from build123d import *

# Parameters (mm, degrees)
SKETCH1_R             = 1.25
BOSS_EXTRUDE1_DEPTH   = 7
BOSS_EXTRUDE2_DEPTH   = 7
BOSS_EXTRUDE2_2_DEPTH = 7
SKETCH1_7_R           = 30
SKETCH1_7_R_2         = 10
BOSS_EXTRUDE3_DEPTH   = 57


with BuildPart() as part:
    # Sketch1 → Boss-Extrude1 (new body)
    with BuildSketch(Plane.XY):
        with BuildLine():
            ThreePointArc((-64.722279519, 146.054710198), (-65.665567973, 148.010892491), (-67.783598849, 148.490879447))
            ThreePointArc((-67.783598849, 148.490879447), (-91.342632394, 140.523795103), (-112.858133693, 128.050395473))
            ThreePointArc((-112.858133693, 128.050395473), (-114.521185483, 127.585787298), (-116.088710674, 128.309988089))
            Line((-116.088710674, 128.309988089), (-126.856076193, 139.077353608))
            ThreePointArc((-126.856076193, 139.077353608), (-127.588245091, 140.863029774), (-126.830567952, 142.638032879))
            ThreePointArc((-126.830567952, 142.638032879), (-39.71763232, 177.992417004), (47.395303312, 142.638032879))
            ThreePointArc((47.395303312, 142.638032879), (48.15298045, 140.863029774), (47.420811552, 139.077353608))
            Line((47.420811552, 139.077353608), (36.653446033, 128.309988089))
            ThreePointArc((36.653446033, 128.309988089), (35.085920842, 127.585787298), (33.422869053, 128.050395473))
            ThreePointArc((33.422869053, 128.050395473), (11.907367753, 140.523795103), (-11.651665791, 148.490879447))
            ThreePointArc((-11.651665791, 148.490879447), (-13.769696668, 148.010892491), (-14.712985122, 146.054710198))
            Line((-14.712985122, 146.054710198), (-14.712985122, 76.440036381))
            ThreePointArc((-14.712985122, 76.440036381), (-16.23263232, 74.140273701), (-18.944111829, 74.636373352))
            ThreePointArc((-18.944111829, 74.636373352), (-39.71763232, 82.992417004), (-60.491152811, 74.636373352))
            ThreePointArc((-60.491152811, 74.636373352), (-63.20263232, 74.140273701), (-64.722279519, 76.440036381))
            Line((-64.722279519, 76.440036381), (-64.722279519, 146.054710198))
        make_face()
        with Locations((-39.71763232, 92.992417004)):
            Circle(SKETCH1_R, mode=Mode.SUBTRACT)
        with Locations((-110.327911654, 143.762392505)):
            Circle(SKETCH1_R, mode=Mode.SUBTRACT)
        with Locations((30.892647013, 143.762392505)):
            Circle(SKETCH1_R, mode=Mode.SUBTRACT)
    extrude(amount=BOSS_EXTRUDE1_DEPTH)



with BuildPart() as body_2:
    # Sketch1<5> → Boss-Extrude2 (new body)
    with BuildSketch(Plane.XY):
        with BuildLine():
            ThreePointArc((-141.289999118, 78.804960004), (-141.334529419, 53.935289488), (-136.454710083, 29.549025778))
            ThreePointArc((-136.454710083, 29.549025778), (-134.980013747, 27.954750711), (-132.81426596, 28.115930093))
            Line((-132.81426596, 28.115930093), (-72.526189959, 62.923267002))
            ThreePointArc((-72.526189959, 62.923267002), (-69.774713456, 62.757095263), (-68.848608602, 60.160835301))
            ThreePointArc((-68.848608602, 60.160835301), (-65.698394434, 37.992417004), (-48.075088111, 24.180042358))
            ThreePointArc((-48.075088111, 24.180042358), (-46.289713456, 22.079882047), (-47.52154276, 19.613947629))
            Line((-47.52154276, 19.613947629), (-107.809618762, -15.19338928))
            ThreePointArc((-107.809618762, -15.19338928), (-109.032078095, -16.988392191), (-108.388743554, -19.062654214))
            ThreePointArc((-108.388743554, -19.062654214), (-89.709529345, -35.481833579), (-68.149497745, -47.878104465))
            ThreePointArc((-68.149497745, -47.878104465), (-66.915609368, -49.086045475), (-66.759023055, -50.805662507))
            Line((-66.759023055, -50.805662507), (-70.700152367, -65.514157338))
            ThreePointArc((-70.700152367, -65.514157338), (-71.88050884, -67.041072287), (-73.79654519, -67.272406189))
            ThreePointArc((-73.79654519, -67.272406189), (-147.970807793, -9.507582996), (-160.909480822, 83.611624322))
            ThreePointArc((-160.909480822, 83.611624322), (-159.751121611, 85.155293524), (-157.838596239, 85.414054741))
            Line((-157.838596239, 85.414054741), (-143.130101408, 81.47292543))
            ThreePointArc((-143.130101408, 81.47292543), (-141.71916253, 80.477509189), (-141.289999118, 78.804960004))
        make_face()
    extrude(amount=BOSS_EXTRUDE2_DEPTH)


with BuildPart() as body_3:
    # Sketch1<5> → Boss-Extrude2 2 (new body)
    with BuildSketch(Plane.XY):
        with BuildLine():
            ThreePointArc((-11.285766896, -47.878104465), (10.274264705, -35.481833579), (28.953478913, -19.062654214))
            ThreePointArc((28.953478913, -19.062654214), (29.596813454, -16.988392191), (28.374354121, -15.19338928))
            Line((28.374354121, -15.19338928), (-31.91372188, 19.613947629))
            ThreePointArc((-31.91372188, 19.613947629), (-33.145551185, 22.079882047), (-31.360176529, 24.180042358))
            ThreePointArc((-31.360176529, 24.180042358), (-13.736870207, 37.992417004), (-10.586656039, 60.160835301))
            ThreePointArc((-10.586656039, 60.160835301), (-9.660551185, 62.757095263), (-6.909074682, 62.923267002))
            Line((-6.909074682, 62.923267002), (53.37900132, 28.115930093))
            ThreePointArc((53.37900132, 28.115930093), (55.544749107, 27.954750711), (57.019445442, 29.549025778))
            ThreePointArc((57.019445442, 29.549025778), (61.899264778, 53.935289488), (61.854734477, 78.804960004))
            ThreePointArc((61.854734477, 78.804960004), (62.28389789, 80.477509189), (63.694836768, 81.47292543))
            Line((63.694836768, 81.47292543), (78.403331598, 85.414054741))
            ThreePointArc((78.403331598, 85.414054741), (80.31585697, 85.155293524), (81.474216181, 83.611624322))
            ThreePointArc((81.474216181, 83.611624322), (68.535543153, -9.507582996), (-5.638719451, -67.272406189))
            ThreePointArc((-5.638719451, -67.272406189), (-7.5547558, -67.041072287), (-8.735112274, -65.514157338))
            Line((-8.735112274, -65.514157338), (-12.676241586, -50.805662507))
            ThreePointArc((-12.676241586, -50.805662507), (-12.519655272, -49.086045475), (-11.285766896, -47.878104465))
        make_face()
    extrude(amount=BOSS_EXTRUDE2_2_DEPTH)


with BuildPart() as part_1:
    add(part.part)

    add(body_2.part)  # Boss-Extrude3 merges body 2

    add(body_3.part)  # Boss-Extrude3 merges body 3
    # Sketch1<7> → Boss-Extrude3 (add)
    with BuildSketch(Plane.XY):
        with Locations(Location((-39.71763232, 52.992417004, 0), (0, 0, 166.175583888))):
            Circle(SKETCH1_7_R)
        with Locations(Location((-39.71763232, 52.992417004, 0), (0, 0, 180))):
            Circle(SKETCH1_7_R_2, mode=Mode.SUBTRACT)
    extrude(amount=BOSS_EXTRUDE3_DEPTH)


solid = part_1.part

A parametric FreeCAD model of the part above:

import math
import FreeCAD as App
import Part
import Sketcher

V = App.Vector
Q = App.Units.Quantity

doc = App.newDocument("Part")
body = doc.addObject("PartDesign::Body", "Body")

sketch1 = body.newObject("Sketcher::SketchObject", "Sketch")
sketch1.AttachmentSupport = (doc.getObject("XY_Plane"), [""])
sketch1.MapMode = "FlatFace"
sketch1.addGeometry([
    Part.ArcOfCircle(Part.Circle(V(-67.2, 146.1, 0), V(0, 0, 1), 2.5), math.radians(0), math.radians(103)),
    Part.LineSegment(V(-64.7, 146.1, 0), V(-64.7, 76.4, 0)),
    Part.ArcOfCircle(Part.Circle(V(-62.2, 76.4, 0), V(0, 0, 1), 2.5), math.radians(-180), math.radians(-46)),
    Part.ArcOfCircle(Part.Circle(V(-39.7, 53, 0), V(0, 0, 1), 30), math.radians(46), math.radians(134)),
    Part.ArcOfCircle(Part.Circle(V(-17.2, 76.4, 0), V(0, 0, 1), 2.5), math.radians(-134), math.radians(0)),
    Part.LineSegment(V(-14.7, 76.4, 0), V(-14.7, 146.1, 0)),
    Part.ArcOfCircle(Part.Circle(V(-12.2, 146.1, 0), V(0, 0, 1), 2.5), math.radians(77), math.radians(180)),
    Part.ArcOfCircle(Part.Circle(V(-39.7, 26.7, 0), V(0, 0, 1), 125), math.radians(54), math.radians(77)),
    Part.ArcOfCircle(Part.Circle(V(34.9, 130.1, 0), V(0, 0, 1), 2.5), math.radians(-126), math.radians(-45)),
    Part.LineSegment(V(36.7, 128.3, 0), V(47.4, 139.1, 0)),
    Part.ArcOfCircle(Part.Circle(V(45.7, 140.8, 0), V(0, 0, 1), 2.5), math.radians(-45), math.radians(46)),
    Part.ArcOfCircle(Part.Circle(V(-39.7, 53, 0), V(0, 0, 1), 125), math.radians(46), math.radians(134)),
    Part.ArcOfCircle(Part.Circle(V(-125.1, 140.8, 0), V(0, 0, 1), 2.5), math.radians(134), math.radians(225)),
    Part.LineSegment(V(-126.9, 139.1, 0), V(-116.1, 128.3, 0)),
    Part.ArcOfCircle(Part.Circle(V(-114.3, 130.1, 0), V(0, 0, 1), 2.5), math.radians(-135), math.radians(-54)),
    Part.ArcOfCircle(Part.Circle(V(-39.7, 26.7, 0), V(0, 0, 1), 125), math.radians(103), math.radians(126)),
    Part.Circle(V(-39.7, 93, 0), V(0, 0, 1), 1.2),
    Part.Circle(V(30.9, 143.8, 0), V(0, 0, 1), 1.2),
    Part.Circle(V(-110.3, 143.8, 0), V(0, 0, 1), 1.2),
], False)
sketch1.addConstraint([
    Sketcher.Constraint("Tangent", 0, 1, 1, 1),
    Sketcher.Constraint("Tangent", 1, 2, 2, 1),
    Sketcher.Constraint("Tangent", 2, 2, 3, 2),
    Sketcher.Constraint("Tangent", 3, 1, 4, 1),
    Sketcher.Constraint("Tangent", 4, 2, 5, 1),
    Sketcher.Constraint("Tangent", 5, 2, 6, 2),
    Sketcher.Constraint("Tangent", 6, 1, 7, 2),
    Sketcher.Constraint("Tangent", 7, 1, 8, 1),
    Sketcher.Constraint("Tangent", 8, 2, 9, 1),
    Sketcher.Constraint("Tangent", 9, 2, 10, 1),
    Sketcher.Constraint("Tangent", 10, 2, 11, 1),
    Sketcher.Constraint("Tangent", 11, 2, 12, 1),
    Sketcher.Constraint("Tangent", 12, 2, 13, 1),
    Sketcher.Constraint("Tangent", 13, 2, 14, 1),
    Sketcher.Constraint("Tangent", 14, 2, 15, 2),
    Sketcher.Constraint("Tangent", 15, 1, 0, 2),
    Sketcher.Constraint("Vertical", 1),
    Sketcher.Constraint("Vertical", 5),
    Sketcher.Constraint("Coincident", 11, 3, 3, 3),
    Sketcher.Constraint("Coincident", 15, 3, 7, 3),
    Sketcher.Constraint("Equal", 0, 2),
    Sketcher.Constraint("Equal", 2, 4),
    Sketcher.Constraint("Equal", 4, 6),
    Sketcher.Constraint("Equal", 6, 8),
    Sketcher.Constraint("Equal", 8, 10),
    Sketcher.Constraint("Equal", 7, 11),
    Sketcher.Constraint("Equal", 10, 12),
    Sketcher.Constraint("Equal", 12, 14),
    Sketcher.Constraint("Equal", 11, 15),
    Sketcher.Constraint("Equal", 16, 17),
    Sketcher.Constraint("Equal", 17, 18),
    Sketcher.Constraint("Perpendicular", 9, 13),
    Sketcher.Constraint("Horizontal", 2, 3, 4, 3),
    Sketcher.Constraint("Horizontal", 0, 3, 6, 3),
    Sketcher.Constraint("Horizontal", 10, 3, 12, 3),
    Sketcher.Constraint("Horizontal", 8, 3, 14, 3),
    Sketcher.Constraint("Horizontal", 17, 3, 18, 3),
    Sketcher.Constraint("Vertical", 15, 3, 16, 3),
    Sketcher.Constraint("Radius", 3, Q("30 mm")),
    Sketcher.Constraint("Radius", 7, Q("125 mm")),
    Sketcher.Constraint("Diameter", 16, Q("2.5 mm")),
    Sketcher.Constraint("Radius", 0, Q("2.5 mm")),
    Sketcher.Constraint("DistanceY", 3, 3, 16, 3, Q("40 mm")),
    Sketcher.Constraint("DistanceY", 7, 3, 3, 3, Q("26.31 mm")),
    Sketcher.Constraint("DistanceX", 15, 1, -1, 1, Q("67.783599 mm")),
    Sketcher.Constraint("DistanceX", 8, 2, 10, 3, Q("8.999599 mm")),
    Sketcher.Constraint("DistanceX", 17, 3, 8, 2, Q("5.760799 mm")),
    Sketcher.Constraint("DistanceX", 13, 2, 18, 3, Q("5.760799 mm")),
    Sketcher.Constraint("DistanceY", 1, 2, 1, 1, Q("69.614674 mm")),
    Sketcher.Constraint("DistanceY", -1, 1, 0, 3, Q("146.05471 mm")),
    Sketcher.Constraint("DistanceY", 10, 3, 17, 3, Q("2.917272 mm")),
])
pad1 = body.newObject("PartDesign::Pad", "Pad")
pad1.Profile = sketch1
pad1.Length = 7
body2 = doc.addObject("PartDesign::Body", "Body001")

sketch2 = body2.newObject("Sketcher::SketchObject", "Sketch001")
sketch2.AttachmentSupport = (doc.getObject("XY_Plane001"), [""])
sketch2.MapMode = "FlatFace"
sketch2.addGeometry([
    Part.ArcOfCircle(Part.Circle(V(-16.9, 66.1, 0), V(0, 0, 1), 125), math.radians(174), math.radians(197)),
    Part.ArcOfCircle(Part.Circle(V(-143.8, 79.1, 0), V(0, 0, 1), 2.5), math.radians(-6), math.radians(75)),
    Part.LineSegment(V(-143.1, 81.5, 0), V(-157.8, 85.4, 0)),
    Part.ArcOfCircle(Part.Circle(V(-158.5, 83, 0), V(0, 0, 1), 2.5), math.radians(75), math.radians(166)),
    Part.ArcOfCircle(Part.Circle(V(-39.7, 53, 0), V(0, 0, 1), 125), math.radians(166), math.radians(254)),
    Part.ArcOfCircle(Part.Circle(V(-73.1, -64.9, 0), V(0, 0, 1), 2.5), math.radians(-106), math.radians(-15)),
    Part.LineSegment(V(-70.7, -65.5, 0), V(-66.8, -50.8, 0)),
    Part.ArcOfCircle(Part.Circle(V(-69.2, -50.2, 0), V(0, 0, 1), 2.5), math.radians(-15), math.radians(66)),
    Part.ArcOfCircle(Part.Circle(V(-16.9, 66.1, 0), V(0, 0, 1), 125), math.radians(-137), math.radians(-114)),
    Part.ArcOfCircle(Part.Circle(V(-106.6, -17.4, 0), V(0, 0, 1), 2.5), math.radians(120), math.radians(223)),
    Part.LineSegment(V(-107.8, -15.2, 0), V(-47.5, 19.6, 0)),
    Part.ArcOfCircle(Part.Circle(V(-48.8, 21.8, 0), V(0, 0, 1), 2.5), math.radians(-60), math.radians(74)),
    Part.ArcOfCircle(Part.Circle(V(-39.7, 53, 0), V(0, 0, 1), 30), math.radians(166), math.radians(254)),
    Part.ArcOfCircle(Part.Circle(V(-71.3, 60.8, 0), V(0, 0, 1), 2.5), math.radians(-14), math.radians(120)),
    Part.LineSegment(V(-72.5, 62.9, 0), V(-132.8, 28.1, 0)),
    Part.ArcOfCircle(Part.Circle(V(-134.1, 30.3, 0), V(0, 0, 1), 2.5), math.radians(-163), math.radians(-60)),
], False)
sketch2.addConstraint([
    Sketcher.Constraint("Tangent", 0, 1, 1, 1),
    Sketcher.Constraint("Tangent", 1, 2, 2, 1),
    Sketcher.Constraint("Tangent", 2, 2, 3, 1),
    Sketcher.Constraint("Tangent", 3, 2, 4, 1),
    Sketcher.Constraint("Tangent", 4, 2, 5, 1),
    Sketcher.Constraint("Tangent", 5, 2, 6, 1),
    Sketcher.Constraint("Tangent", 6, 2, 7, 1),
    Sketcher.Constraint("Tangent", 7, 2, 8, 2),
    Sketcher.Constraint("Tangent", 8, 1, 9, 2),
    Sketcher.Constraint("Tangent", 9, 1, 10, 1),
    Sketcher.Constraint("Tangent", 10, 2, 11, 1),
    Sketcher.Constraint("Tangent", 11, 2, 12, 2),
    Sketcher.Constraint("Tangent", 12, 1, 13, 1),
    Sketcher.Constraint("Tangent", 13, 2, 14, 1),
    Sketcher.Constraint("Tangent", 14, 2, 15, 2),
    Sketcher.Constraint("Tangent", 15, 1, 0, 2),
    Sketcher.Constraint("Coincident", 8, 3, 0, 3),
    Sketcher.Constraint("Coincident", 12, 3, 4, 3),
    Sketcher.Constraint("Equal", 1, 3),
    Sketcher.Constraint("Equal", 0, 4),
    Sketcher.Constraint("Equal", 3, 5),
    Sketcher.Constraint("Equal", 5, 7),
    Sketcher.Constraint("Equal", 4, 8),
    Sketcher.Constraint("Equal", 7, 9),
    Sketcher.Constraint("Equal", 9, 11),
    Sketcher.Constraint("Equal", 11, 13),
    Sketcher.Constraint("Equal", 13, 15),
    Sketcher.Constraint("Perpendicular", 2, 6),
    Sketcher.Constraint("Parallel", 10, 14),
    Sketcher.Constraint("Equal", 2, 6),
    Sketcher.Constraint("Equal", 10, 14),
    Sketcher.Constraint("Radius", 0, Q("125 mm")),
    Sketcher.Constraint("Radius", 12, Q("30 mm")),
    Sketcher.Constraint("Radius", 1, Q("2.5 mm")),
    Sketcher.Constraint("Angle", 2, Q("165 deg")),
    Sketcher.Constraint("Angle", 10, Q("30 deg")),
    Sketcher.Constraint("DistanceX", 0, 1, -1, 1, Q("141.289999 mm")),
    Sketcher.Constraint("DistanceY", 4, 3, 0, 3, Q("13.155 mm")),
    Sketcher.Constraint("DistanceY", 1, 2, 3, 2, Q("2.138699 mm")),
    Sketcher.Constraint("DistanceY", 4, 2, 15, 3, Q("97.5534 mm")),
    Sketcher.Constraint("DistanceX", 13, 3, 11, 2, Q("23.201102 mm")),
    Sketcher.Constraint("DistanceY", -1, 1, 1, 3, Q("79.058111 mm")),
])
pad2 = body2.newObject("PartDesign::Pad", "Pad001")
pad2.Profile = sketch2
pad2.Length = 7
body3 = doc.addObject("PartDesign::Body", "Body002")

sketch3 = body3.newObject("Sketcher::SketchObject", "Sketch002")
sketch3.AttachmentSupport = (doc.getObject("XY_Plane002"), [""])
sketch3.MapMode = "FlatFace"
sketch3.addGeometry([
    Part.ArcOfCircle(Part.Circle(V(-62.5, 66.1, 0), V(0, 0, 1), 125), math.radians(-66), math.radians(-43)),
    Part.ArcOfCircle(Part.Circle(V(-10.3, -50.2, 0), V(0, 0, 1), 2.5), math.radians(114), math.radians(195)),
    Part.LineSegment(V(-12.7, -50.8, 0), V(-8.7, -65.5, 0)),
    Part.ArcOfCircle(Part.Circle(V(-6.3, -64.9, 0), V(0, 0, 1), 2.5), math.radians(-165), math.radians(-74)),
    Part.ArcOfCircle(Part.Circle(V(-39.7, 53, 0), V(0, 0, 1), 125), math.radians(-74), math.radians(14)),
    Part.ArcOfCircle(Part.Circle(V(79.1, 83, 0), V(0, 0, 1), 2.5), math.radians(14), math.radians(105)),
    Part.LineSegment(V(78.4, 85.4, 0), V(63.7, 81.5, 0)),
    Part.ArcOfCircle(Part.Circle(V(64.3, 79.1, 0), V(0, 0, 1), 2.5), math.radians(105), math.radians(186)),
    Part.ArcOfCircle(Part.Circle(V(-62.5, 66.1, 0), V(0, 0, 1), 125), math.radians(-17), math.radians(6)),
    Part.ArcOfCircle(Part.Circle(V(54.6, 30.3, 0), V(0, 0, 1), 2.5), math.radians(-120), math.radians(-17)),
    Part.LineSegment(V(53.4, 28.1, 0), V(-6.9, 62.9, 0)),
    Part.ArcOfCircle(Part.Circle(V(-8.2, 60.8, 0), V(0, 0, 1), 2.5), math.radians(60), math.radians(194)),
    Part.ArcOfCircle(Part.Circle(V(-39.7, 53, 0), V(0, 0, 1), 30), math.radians(-74), math.radians(14)),
    Part.ArcOfCircle(Part.Circle(V(-30.7, 21.8, 0), V(0, 0, 1), 2.5), math.radians(106), math.radians(240)),
    Part.LineSegment(V(-31.9, 19.6, 0), V(28.4, -15.2, 0)),
    Part.ArcOfCircle(Part.Circle(V(27.1, -17.4, 0), V(0, 0, 1), 2.5), math.radians(-43), math.radians(60)),
], False)
sketch3.addConstraint([
    Sketcher.Constraint("Tangent", 0, 1, 1, 1),
    Sketcher.Constraint("Tangent", 1, 2, 2, 1),
    Sketcher.Constraint("Tangent", 2, 2, 3, 1),
    Sketcher.Constraint("Tangent", 3, 2, 4, 1),
    Sketcher.Constraint("Tangent", 4, 2, 5, 1),
    Sketcher.Constraint("Tangent", 5, 2, 6, 1),
    Sketcher.Constraint("Tangent", 6, 2, 7, 1),
    Sketcher.Constraint("Tangent", 7, 2, 8, 2),
    Sketcher.Constraint("Tangent", 8, 1, 9, 2),
    Sketcher.Constraint("Tangent", 9, 1, 10, 1),
    Sketcher.Constraint("Tangent", 10, 2, 11, 1),
    Sketcher.Constraint("Tangent", 11, 2, 12, 2),
    Sketcher.Constraint("Tangent", 12, 1, 13, 1),
    Sketcher.Constraint("Tangent", 13, 2, 14, 1),
    Sketcher.Constraint("Tangent", 14, 2, 15, 2),
    Sketcher.Constraint("Tangent", 15, 1, 0, 2),
    Sketcher.Constraint("Coincident", 8, 3, 0, 3),
    Sketcher.Constraint("Coincident", 12, 3, 4, 3),
    Sketcher.Constraint("Equal", 1, 3),
    Sketcher.Constraint("Equal", 0, 4),
    Sketcher.Constraint("Equal", 3, 5),
    Sketcher.Constraint("Equal", 5, 7),
    Sketcher.Constraint("Equal", 4, 8),
    Sketcher.Constraint("Equal", 7, 9),
    Sketcher.Constraint("Equal", 9, 11),
    Sketcher.Constraint("Equal", 11, 13),
    Sketcher.Constraint("Equal", 13, 15),
    Sketcher.Constraint("Perpendicular", 2, 6),
    Sketcher.Constraint("Parallel", 10, 14),
    Sketcher.Constraint("Equal", 2, 6),
    Sketcher.Constraint("Equal", 10, 14),
    Sketcher.Constraint("Radius", 0, Q("125 mm")),
    Sketcher.Constraint("Radius", 12, Q("30 mm")),
    Sketcher.Constraint("Radius", 1, Q("2.5 mm")),
    Sketcher.Constraint("Angle", 2, Q("-75 deg")),
    Sketcher.Constraint("Angle", 10, Q("150 deg")),
    Sketcher.Constraint("DistanceX", -1, 1, 9, 3, Q("54.629001 mm")),
    Sketcher.Constraint("DistanceY", 4, 3, 0, 3, Q("13.155 mm")),
    Sketcher.Constraint("DistanceX", 3, 3, 9, 3, Q("60.949299 mm")),
    Sketcher.Constraint("DistanceY", 0, 1, 9, 3, Q("78.159098 mm")),
    Sketcher.Constraint("DistanceY", 8, 1, 6, 2, Q("51.9239 mm")),
    Sketcher.Constraint("DistanceY", 3, 3, -1, 1, Q("64.86711 mm")),
])
pad3 = body3.newObject("PartDesign::Pad", "Pad002")
pad3.Profile = sketch3
pad3.Length = 7
body.AllowCompound = True
doc.recompute()

boolean = body.newObject("PartDesign::Boolean", "Boolean")
boolean.Type = "Fuse"
boolean.addObjects([body2])
doc.recompute()

boolean2 = body.newObject("PartDesign::Boolean", "Boolean001")
boolean2.Type = "Fuse"
boolean2.addObjects([body3])

sketch4 = body.newObject("Sketcher::SketchObject", "Sketch003")
sketch4.AttachmentSupport = (doc.getObject("XY_Plane"), [""])
sketch4.MapMode = "FlatFace"
sketch4.addGeometry([
    Part.Circle(V(-40, 53, 0), V(0, 0, 1), 30),
    Part.Circle(V(-40, 53, 0), V(0, 0, 1), 10),
], False)
sketch4.addConstraint([
    Sketcher.Constraint("Coincident", 1, 3, 0, 3),
    Sketcher.Constraint("Diameter", 0, Q("60 mm")),
    Sketcher.Constraint("Diameter", 1, Q("20 mm")),
    Sketcher.Constraint("DistanceX", 0, 3, -1, 1, Q("39.717632 mm")),
    Sketcher.Constraint("DistanceY", -1, 1, 0, 3, Q("52.992417 mm")),
])
pad4 = body.newObject("PartDesign::Pad", "Pad003")
pad4.Profile = sketch4
pad4.Length = 57

doc.recompute()
